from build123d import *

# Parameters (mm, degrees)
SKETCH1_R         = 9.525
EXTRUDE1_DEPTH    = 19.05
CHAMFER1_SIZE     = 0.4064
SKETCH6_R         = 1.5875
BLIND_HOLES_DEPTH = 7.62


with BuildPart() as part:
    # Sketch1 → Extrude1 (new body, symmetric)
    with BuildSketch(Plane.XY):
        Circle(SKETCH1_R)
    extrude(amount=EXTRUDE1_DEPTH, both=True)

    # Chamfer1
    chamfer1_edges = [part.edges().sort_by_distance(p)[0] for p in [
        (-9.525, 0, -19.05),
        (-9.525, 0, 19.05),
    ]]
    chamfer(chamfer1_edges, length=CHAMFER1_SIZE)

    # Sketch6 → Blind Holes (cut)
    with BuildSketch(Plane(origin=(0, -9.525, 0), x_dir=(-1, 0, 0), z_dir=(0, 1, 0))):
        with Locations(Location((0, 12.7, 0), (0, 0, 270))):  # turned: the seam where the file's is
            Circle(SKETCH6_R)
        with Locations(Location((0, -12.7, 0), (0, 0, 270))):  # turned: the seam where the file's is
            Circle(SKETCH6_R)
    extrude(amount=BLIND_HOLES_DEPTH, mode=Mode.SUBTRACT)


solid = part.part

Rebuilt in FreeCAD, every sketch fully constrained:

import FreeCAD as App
import Part
import Sketcher
Q = App.Units.Quantity


def edges_at(feature, points):
    """Names of the edges that pass closest to the given points."""
    edges = feature.Shape.Edges
    near = lambda p: min(range(len(edges)), key=lambda i: edges[i].distToShape(Part.Vertex(*p))[0])
    return sorted({f"Edge{near(p) + 1}" for p in points})

doc = App.newDocument("Part")
body = doc.addObject("PartDesign::Body", "Body")

# Sketch on XY plane
sketch1 = doc.addObject("Sketcher::SketchObject", "Sketch")
body.addObject(sketch1)
sketch1.AttachmentSupport = (doc.XY_Plane, [""])
sketch1.MapMode = "FlatFace"
sketch1.addGeometry(Part.Circle(App.Vector(0, 0, 0), App.Vector(0, 0, 1), 10), False)
sketch1.addConstraint([
    Sketcher.Constraint("Coincident", 0, 3, -1, 1),
    Sketcher.Constraint("Diameter", 0, Q("0.75 in")),
])
pad1 = doc.addObject("PartDesign::Pad", "Pad")
body.addObject(pad1)
pad1.Profile = sketch1
pad1.Length = Q("1.5 in")
pad1.Midplane = True
doc.recompute()

chamfer = doc.addObject("PartDesign::Chamfer", "Chamfer")
body.addObject(chamfer)
chamfer.Base = (pad1, edges_at(pad1, [(-9.525, 0, -19.05), (-9.525, 0, 19.05)]))
chamfer.Size = Q("0.016 in")

# Sketch on XZ plane
sketch2 = doc.addObject("Sketcher::SketchObject", "Sketch001")
body.addObject(sketch2)
sketch2.AttachmentSupport = (doc.XZ_Plane, [""])
sketch2.MapMode = "FlatFace"
sketch2.AttachmentOffset = App.Placement(App.Vector(0, 0, 0.375 * 25.4), App.Rotation())
sketch2.addGeometry([
    Part.Circle(App.Vector(0, 12.7, 0), App.Vector(0, 0, 1), 1.6),
    Part.Circle(App.Vector(0, -12.7, 0), App.Vector(0, 0, 1), 1.6),
], False)
sketch2.addConstraint([
    Sketcher.Constraint("Equal", 0, 1),
    Sketcher.Constraint("Symmetric", 0, 3, 1, 3, -1, 1),
    Sketcher.Constraint("PointOnObject", 0, 3, -2),
    Sketcher.Constraint("Diameter", 0, Q("0.125 in")),
    Sketcher.Constraint("DistanceY", 1, 3, 0, 3, Q("1 in")),
])
pocket1 = doc.addObject("PartDesign::Pocket", "Pocket")
body.addObject(pocket1)
pocket1.Profile = sketch2
pocket1.Length = Q("0.3 in")

doc.recompute()
